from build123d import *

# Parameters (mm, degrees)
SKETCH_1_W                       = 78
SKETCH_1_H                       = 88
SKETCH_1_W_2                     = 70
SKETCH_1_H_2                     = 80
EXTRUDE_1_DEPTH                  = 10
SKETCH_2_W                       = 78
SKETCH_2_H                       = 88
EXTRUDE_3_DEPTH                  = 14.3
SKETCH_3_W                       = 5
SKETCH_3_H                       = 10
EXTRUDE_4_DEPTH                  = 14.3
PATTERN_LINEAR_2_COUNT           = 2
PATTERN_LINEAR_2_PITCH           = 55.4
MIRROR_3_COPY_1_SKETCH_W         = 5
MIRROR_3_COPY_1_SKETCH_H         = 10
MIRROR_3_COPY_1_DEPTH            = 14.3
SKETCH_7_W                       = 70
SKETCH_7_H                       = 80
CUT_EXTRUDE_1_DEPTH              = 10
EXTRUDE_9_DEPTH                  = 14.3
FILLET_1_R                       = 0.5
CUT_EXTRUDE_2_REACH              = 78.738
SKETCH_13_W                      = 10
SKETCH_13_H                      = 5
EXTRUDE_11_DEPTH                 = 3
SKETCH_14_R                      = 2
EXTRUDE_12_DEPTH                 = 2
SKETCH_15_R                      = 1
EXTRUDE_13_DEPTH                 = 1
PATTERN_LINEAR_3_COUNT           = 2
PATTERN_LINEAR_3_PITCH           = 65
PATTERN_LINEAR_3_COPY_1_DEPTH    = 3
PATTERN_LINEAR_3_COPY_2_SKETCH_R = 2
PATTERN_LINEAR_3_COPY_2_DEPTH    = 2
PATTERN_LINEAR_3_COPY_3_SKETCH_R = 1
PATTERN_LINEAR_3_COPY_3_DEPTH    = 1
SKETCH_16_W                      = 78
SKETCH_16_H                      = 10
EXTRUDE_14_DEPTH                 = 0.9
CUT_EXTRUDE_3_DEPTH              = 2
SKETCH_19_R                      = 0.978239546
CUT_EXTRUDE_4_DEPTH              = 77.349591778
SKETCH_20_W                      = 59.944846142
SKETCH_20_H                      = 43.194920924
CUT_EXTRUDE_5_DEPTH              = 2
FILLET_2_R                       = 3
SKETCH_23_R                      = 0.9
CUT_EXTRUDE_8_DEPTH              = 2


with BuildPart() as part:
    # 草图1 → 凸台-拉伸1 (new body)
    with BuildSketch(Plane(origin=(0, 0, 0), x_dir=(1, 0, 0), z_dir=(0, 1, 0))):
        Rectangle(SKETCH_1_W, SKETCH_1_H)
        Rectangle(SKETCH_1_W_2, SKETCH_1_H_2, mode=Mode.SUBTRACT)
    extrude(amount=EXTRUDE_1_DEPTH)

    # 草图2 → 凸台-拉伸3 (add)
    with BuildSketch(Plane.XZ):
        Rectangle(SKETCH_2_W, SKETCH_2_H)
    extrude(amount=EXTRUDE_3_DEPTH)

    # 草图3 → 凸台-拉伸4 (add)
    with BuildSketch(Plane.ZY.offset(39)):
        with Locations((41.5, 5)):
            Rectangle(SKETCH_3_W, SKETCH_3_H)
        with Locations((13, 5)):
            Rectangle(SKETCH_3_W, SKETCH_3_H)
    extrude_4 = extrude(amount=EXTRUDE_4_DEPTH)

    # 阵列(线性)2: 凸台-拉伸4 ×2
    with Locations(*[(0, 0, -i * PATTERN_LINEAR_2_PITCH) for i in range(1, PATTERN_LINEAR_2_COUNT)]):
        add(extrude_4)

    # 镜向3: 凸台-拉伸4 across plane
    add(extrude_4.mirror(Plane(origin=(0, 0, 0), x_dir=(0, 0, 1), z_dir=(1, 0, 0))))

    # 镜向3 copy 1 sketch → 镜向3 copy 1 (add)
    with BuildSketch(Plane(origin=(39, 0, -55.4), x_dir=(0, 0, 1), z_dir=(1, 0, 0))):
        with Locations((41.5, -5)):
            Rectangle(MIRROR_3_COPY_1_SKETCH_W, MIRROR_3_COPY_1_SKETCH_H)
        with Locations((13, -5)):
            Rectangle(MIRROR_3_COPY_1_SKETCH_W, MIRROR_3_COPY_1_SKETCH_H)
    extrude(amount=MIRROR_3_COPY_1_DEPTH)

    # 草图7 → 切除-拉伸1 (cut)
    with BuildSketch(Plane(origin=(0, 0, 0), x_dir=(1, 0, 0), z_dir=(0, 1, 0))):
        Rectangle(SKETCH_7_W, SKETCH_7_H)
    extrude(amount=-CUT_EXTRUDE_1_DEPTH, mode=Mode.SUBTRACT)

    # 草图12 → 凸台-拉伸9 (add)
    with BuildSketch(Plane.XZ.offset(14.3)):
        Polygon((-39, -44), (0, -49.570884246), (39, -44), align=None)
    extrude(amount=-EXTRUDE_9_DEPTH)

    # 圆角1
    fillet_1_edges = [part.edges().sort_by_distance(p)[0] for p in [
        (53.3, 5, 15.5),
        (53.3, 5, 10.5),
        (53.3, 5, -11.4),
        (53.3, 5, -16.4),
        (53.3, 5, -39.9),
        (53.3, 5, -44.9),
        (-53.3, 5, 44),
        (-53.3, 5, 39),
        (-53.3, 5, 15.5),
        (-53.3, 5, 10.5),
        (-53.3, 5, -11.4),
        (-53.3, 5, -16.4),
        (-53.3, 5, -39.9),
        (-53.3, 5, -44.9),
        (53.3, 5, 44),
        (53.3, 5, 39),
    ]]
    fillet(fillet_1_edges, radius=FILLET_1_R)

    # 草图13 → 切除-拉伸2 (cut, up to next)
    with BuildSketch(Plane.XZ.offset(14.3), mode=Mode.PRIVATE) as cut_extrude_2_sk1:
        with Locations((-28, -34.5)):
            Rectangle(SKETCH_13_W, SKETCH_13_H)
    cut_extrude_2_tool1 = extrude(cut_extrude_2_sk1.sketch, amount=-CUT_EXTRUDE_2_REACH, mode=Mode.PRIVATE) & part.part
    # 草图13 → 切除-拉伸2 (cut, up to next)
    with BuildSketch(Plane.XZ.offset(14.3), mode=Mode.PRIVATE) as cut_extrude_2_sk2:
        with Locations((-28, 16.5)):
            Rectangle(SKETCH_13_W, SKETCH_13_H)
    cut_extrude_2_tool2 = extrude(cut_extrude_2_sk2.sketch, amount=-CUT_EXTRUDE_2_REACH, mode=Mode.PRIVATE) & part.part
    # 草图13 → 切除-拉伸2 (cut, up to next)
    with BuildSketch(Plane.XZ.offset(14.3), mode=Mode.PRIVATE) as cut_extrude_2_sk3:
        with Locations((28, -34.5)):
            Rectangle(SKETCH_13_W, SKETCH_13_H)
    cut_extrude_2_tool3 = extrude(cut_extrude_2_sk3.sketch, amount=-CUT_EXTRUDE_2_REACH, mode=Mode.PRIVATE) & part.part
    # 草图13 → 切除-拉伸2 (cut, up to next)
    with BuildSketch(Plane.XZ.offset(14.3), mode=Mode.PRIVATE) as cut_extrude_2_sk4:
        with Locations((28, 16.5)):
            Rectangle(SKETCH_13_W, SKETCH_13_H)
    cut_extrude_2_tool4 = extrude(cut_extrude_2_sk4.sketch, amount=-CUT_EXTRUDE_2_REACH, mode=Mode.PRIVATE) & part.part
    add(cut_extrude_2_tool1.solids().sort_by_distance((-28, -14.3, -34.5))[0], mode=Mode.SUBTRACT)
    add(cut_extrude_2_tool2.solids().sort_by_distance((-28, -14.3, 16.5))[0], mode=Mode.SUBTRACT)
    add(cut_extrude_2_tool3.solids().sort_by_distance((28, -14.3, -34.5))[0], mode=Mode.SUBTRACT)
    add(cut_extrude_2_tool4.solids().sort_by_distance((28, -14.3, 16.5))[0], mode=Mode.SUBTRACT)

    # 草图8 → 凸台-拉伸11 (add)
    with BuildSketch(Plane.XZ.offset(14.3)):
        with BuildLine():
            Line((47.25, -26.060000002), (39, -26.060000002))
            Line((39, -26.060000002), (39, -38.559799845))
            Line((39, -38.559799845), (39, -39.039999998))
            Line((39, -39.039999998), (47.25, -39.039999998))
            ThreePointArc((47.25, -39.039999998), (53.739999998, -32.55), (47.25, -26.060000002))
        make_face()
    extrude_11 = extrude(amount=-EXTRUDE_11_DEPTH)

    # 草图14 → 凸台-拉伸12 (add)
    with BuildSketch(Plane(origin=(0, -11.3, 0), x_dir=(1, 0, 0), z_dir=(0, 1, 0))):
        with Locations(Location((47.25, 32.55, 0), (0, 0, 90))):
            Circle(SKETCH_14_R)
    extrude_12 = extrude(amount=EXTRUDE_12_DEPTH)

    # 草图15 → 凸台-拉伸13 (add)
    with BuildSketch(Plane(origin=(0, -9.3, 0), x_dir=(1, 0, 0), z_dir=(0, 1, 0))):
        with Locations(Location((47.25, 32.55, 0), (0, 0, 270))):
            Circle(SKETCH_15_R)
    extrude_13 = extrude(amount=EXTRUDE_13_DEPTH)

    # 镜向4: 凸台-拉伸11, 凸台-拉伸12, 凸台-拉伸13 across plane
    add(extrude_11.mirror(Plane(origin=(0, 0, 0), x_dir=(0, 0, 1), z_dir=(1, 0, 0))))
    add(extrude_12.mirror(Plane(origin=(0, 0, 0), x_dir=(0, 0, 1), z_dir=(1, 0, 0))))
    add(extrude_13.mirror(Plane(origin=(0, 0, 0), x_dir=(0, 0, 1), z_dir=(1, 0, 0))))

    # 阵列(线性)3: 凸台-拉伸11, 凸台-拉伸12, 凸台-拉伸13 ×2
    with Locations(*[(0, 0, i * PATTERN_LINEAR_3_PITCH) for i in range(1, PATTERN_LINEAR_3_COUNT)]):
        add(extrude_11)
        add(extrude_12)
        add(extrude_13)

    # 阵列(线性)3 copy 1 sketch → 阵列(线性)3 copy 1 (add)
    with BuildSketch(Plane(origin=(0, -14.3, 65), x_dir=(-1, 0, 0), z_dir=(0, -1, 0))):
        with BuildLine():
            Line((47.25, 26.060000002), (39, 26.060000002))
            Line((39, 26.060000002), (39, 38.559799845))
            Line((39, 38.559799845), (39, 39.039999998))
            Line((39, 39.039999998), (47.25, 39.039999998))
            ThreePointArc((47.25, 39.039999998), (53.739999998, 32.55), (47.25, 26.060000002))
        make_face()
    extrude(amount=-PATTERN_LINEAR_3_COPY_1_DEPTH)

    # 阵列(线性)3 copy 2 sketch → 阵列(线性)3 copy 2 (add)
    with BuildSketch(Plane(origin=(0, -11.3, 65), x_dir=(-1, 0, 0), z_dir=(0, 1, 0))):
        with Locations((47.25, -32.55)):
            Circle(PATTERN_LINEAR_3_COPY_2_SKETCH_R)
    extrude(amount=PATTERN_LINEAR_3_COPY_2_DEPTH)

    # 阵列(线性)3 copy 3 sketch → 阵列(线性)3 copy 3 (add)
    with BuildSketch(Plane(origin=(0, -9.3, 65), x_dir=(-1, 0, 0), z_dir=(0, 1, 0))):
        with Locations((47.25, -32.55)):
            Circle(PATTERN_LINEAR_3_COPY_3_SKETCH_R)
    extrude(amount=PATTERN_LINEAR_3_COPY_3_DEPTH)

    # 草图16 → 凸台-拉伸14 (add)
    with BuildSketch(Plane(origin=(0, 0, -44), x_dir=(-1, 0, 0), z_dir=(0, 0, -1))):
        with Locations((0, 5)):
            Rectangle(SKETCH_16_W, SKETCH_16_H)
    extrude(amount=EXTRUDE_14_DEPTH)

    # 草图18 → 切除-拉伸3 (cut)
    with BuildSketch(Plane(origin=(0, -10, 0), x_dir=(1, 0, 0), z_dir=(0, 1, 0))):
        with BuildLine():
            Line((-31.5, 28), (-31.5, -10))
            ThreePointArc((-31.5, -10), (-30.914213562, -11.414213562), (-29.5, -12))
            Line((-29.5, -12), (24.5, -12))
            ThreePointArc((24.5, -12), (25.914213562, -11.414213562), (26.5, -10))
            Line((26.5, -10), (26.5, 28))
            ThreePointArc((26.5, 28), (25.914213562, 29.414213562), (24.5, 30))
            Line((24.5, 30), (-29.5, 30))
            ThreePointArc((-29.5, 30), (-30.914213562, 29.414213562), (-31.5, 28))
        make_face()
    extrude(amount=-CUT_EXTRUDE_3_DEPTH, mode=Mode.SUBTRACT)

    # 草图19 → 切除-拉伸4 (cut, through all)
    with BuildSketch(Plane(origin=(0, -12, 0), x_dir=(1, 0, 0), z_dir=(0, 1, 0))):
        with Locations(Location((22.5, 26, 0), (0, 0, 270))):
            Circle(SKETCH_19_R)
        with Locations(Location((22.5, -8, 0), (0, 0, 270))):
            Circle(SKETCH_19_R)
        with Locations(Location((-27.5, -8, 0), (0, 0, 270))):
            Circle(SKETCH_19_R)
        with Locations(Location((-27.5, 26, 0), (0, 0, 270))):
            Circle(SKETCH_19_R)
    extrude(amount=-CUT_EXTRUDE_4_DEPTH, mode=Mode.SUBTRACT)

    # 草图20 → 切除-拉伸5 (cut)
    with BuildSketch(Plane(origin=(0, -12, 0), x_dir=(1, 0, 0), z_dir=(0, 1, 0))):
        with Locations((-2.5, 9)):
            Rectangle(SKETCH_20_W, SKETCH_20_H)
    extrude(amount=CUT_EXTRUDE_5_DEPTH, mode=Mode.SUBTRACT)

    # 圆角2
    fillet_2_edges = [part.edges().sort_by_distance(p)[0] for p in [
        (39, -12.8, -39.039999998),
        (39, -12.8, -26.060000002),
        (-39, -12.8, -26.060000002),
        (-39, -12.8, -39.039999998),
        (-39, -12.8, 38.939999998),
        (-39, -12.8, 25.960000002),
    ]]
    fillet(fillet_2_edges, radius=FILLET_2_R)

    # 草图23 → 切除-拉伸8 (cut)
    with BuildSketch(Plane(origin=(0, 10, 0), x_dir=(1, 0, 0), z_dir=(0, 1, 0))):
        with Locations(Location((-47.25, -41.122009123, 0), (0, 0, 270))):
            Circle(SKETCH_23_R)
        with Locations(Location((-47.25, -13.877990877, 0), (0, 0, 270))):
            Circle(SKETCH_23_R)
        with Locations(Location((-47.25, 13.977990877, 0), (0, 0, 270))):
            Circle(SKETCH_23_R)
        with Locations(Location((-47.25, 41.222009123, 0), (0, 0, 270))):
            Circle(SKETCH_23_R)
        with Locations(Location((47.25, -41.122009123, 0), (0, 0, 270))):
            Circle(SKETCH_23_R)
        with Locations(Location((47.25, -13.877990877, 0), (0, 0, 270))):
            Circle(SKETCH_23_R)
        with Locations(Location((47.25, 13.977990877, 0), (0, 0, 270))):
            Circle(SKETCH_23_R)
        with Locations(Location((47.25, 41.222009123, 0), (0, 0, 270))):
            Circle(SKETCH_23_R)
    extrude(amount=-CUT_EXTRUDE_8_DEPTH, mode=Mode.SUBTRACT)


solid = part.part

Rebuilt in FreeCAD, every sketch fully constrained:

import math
import FreeCAD as App
import Part
import Sketcher


def edges_at(feature, points):
    """Names of the edges that pass closest to the given points."""
    edges = feature.Shape.Edges
    near = lambda p: min(range(len(edges)), key=lambda i: edges[i].distToShape(Part.Vertex(*p))[0])
    return sorted({f"Edge{near(p) + 1}" for p in points})


def add_polygon(sketch, points):
    """Adds a closed chain of lines whose ends are joined by coincident constraints."""
    first, n = sketch.GeometryCount, len(points)
    for a, b in zip(points, points[1:] + points[:1]):
        sketch.addGeometry(Part.LineSegment(App.Vector(*a, 0), App.Vector(*b, 0)), False)
    for i in range(n):
        sketch.addConstraint(Sketcher.Constraint("Coincident", first + i, 2, first + (i + 1) % n, 1))

doc = App.newDocument("Part")
body = doc.addObject("PartDesign::Body", "Body")

sketch1 = body.newObject("Sketcher::SketchObject", "Sketch")
sketch1.AttachmentSupport = (doc.getObject("XZ_Plane"), [""])
sketch1.MapMode = "FlatFace"
add_polygon(sketch1, [(-39, -44), (-39, 44), (39, 44), (39, -44)])
add_polygon(sketch1, [(35, 40), (-35, 40), (-35, -40), (35, -40)])
sketch1.addConstraint(Sketcher.Constraint("Vertical", 0))
sketch1.addConstraint(Sketcher.Constraint("Horizontal", 1))
sketch1.addConstraint(Sketcher.Constraint("Vertical", 2))
sketch1.addConstraint(Sketcher.Constraint("Horizontal", 3))
sketch1.addConstraint(Sketcher.Constraint("Horizontal", 4))
sketch1.addConstraint(Sketcher.Constraint("Vertical", 5))
sketch1.addConstraint(Sketcher.Constraint("Horizontal", 6))
sketch1.addConstraint(Sketcher.Constraint("Vertical", 7))
sketch1.addConstraint(Sketcher.Constraint("Symmetric", 0, 2, 2, 2, -1, 1))
sketch1.addConstraint(Sketcher.Constraint("Symmetric", 4, 2, 6, 2, -1, 1))
sketch1.addConstraint(Sketcher.Constraint("DistanceX", 1, 1, 1, 2, 78.0))
sketch1.addConstraint(Sketcher.Constraint("DistanceX", 4, 2, 4, 1, 70.0))
sketch1.addConstraint(Sketcher.Constraint("DistanceY", 0, 1, 0, 2, 88.0))
sketch1.addConstraint(Sketcher.Constraint("DistanceY", 5, 2, 5, 1, 80.0))
pad1 = body.newObject("PartDesign::Pad", "Pad")
pad1.Profile = sketch1
pad1.Length = 10
pad1.Reversed = True

sketch2 = body.newObject("Sketcher::SketchObject", "Sketch001")
sketch2.AttachmentSupport = (doc.getObject("XZ_Plane"), [""])
sketch2.MapMode = "FlatFace"
add_polygon(sketch2, [(-39, 44), (-39, -44), (39, -44), (39, 44)])
sketch2.addConstraint(Sketcher.Constraint("Vertical", 0))
sketch2.addConstraint(Sketcher.Constraint("Horizontal", 1))
sketch2.addConstraint(Sketcher.Constraint("Vertical", 2))
sketch2.addConstraint(Sketcher.Constraint("Horizontal", 3))
sketch2.addConstraint(Sketcher.Constraint("Symmetric", 0, 2, 2, 2, -1, 1))
sketch2.addConstraint(Sketcher.Constraint("DistanceX", 1, 1, 1, 2, 78.0))
sketch2.addConstraint(Sketcher.Constraint("DistanceY", 0, 2, 0, 1, 88.0))
pad2 = body.newObject("PartDesign::Pad", "Pad001")
pad2.Profile = sketch2
pad2.Length = 14.3

sketch3 = body.newObject("Sketcher::SketchObject", "Sketch002")
sketch3.AttachmentSupport = (doc.getObject("YZ_Plane"), [""])
sketch3.MapMode = "FlatFace"
sketch3.AttachmentOffset = App.Placement(App.Vector(0, 0, -39), App.Rotation())
add_polygon(sketch3, [(10, 39), (0, 39), (0, 44), (10, 44)])
add_polygon(sketch3, [(10, 10), (0, 10), (0, 16), (10, 16)])
sketch3.addConstraint(Sketcher.Constraint("Horizontal", 0))
sketch3.addConstraint(Sketcher.Constraint("Vertical", 1))
sketch3.addConstraint(Sketcher.Constraint("Horizontal", 2))
sketch3.addConstraint(Sketcher.Constraint("Vertical", 3))
sketch3.addConstraint(Sketcher.Constraint("Horizontal", 4))
sketch3.addConstraint(Sketcher.Constraint("Vertical", 5))
sketch3.addConstraint(Sketcher.Constraint("Horizontal", 6))
sketch3.addConstraint(Sketcher.Constraint("Vertical", 7))
sketch3.addConstraint(Sketcher.Constraint("PointOnObject", 0, 2, -2))
sketch3.addConstraint(Sketcher.Constraint("PointOnObject", 4, 2, -2))
sketch3.addConstraint(Sketcher.Constraint("Vertical", 3, 2, 6, 2))
sketch3.addConstraint(Sketcher.Constraint("Equal", 3, 5))
sketch3.addConstraint(Sketcher.Constraint("DistanceX", 0, 2, 0, 1, 10.0))
sketch3.addConstraint(Sketcher.Constraint("DistanceY", 1, 1, 1, 2, 5.0))
sketch3.addConstraint(Sketcher.Constraint("DistanceY", -1, 1, 0, 2, 39.0))
sketch3.addConstraint(Sketcher.Constraint("DistanceY", -1, 1, 4, 2, 10.5))
pad3 = body.newObject("PartDesign::Pad", "Pad002")
pad3.Profile = sketch3
pad3.Length = 14.3
pad3.Reversed = True
doc.recompute()

linearpattern = body.newObject("PartDesign::LinearPattern", "LinearPattern")
linearpattern.Originals = [pad3]
linearpattern.Direction = (doc.getObject("Z_Axis"), [""])
linearpattern.Mode = "offset"
linearpattern.Offset = 55.4
linearpattern.Occurrences = 2
linearpattern.Reversed = True
body.Tip = linearpattern
doc.recompute()

mirrored = body.newObject("PartDesign::Mirrored", "Mirrored")
mirrored.Originals = [pad3]
mirrored.MirrorPlane = (doc.getObject("YZ_Plane"), [""])
body.Tip = mirrored

sketch4 = body.newObject("Sketcher::SketchObject", "Sketch003")
sketch4.AttachmentSupport = (doc.getObject("YZ_Plane"), [""])
sketch4.MapMode = "FlatFace"
sketch4.AttachmentOffset = App.Placement(App.Vector(0, 0, 39), App.Rotation())
add_polygon(sketch4, [(0, -16.4), (10, -16.4), (10, -11.4), (0, -11.4)])
add_polygon(sketch4, [(0, -44.9), (10, -44.9), (10, -39.9), (0, -39.9)])
sketch4.addConstraint(Sketcher.Constraint("Horizontal", 0))
sketch4.addConstraint(Sketcher.Constraint("Vertical", 1))
sketch4.addConstraint(Sketcher.Constraint("Horizontal", 2))
sketch4.addConstraint(Sketcher.Constraint("Vertical", 3))
sketch4.addConstraint(Sketcher.Constraint("Horizontal", 4))
sketch4.addConstraint(Sketcher.Constraint("Vertical", 5))
sketch4.addConstraint(Sketcher.Constraint("Horizontal", 6))
sketch4.addConstraint(Sketcher.Constraint("Vertical", 7))
sketch4.addConstraint(Sketcher.Constraint("PointOnObject", 2, 2, -2))
sketch4.addConstraint(Sketcher.Constraint("PointOnObject", 6, 2, -2))
sketch4.addConstraint(Sketcher.Constraint("Vertical", 1, 2, 4, 2))
sketch4.addConstraint(Sketcher.Constraint("Equal", 3, 5))
sketch4.addConstraint(Sketcher.Constraint("DistanceX", 0, 1, 0, 2, 10.0))
sketch4.addConstraint(Sketcher.Constraint("DistanceY", 1, 1, 1, 2, 5.0))
sketch4.addConstraint(Sketcher.Constraint("DistanceY", 0, 2, -1, 1, 16.4))
sketch4.addConstraint(Sketcher.Constraint("DistanceY", 4, 2, -1, 1, 44.9))
pad4 = body.newObject("PartDesign::Pad", "Pad003")
pad4.Profile = sketch4
pad4.Length = 14.3

sketch5 = body.newObject("Sketcher::SketchObject", "Sketch004")
sketch5.AttachmentSupport = (doc.getObject("XZ_Plane"), [""])
sketch5.MapMode = "FlatFace"
add_polygon(sketch5, [(-35, -40), (-35, 40), (35, 40), (35, -40)])
sketch5.addConstraint(Sketcher.Constraint("Vertical", 0))
sketch5.addConstraint(Sketcher.Constraint("Horizontal", 1))
sketch5.addConstraint(Sketcher.Constraint("Vertical", 2))
sketch5.addConstraint(Sketcher.Constraint("Horizontal", 3))
sketch5.addConstraint(Sketcher.Constraint("Symmetric", 0, 2, 2, 2, -1, 1))
sketch5.addConstraint(Sketcher.Constraint("DistanceX", 1, 1, 1, 2, 70.0))
sketch5.addConstraint(Sketcher.Constraint("DistanceY", 0, 1, 0, 2, 80.0))
pocket1 = body.newObject("PartDesign::Pocket", "Pocket")
pocket1.Profile = sketch5
pocket1.Length = 10
pocket1.Reversed = True

sketch6 = body.newObject("Sketcher::SketchObject", "Sketch005")
sketch6.AttachmentSupport = (doc.getObject("XZ_Plane"), [""])
sketch6.MapMode = "FlatFace"
sketch6.AttachmentOffset = App.Placement(App.Vector(0, 0, 14.3), App.Rotation())
add_polygon(sketch6, [(-39, -44), (0, -50), (39, -44)])
sketch6.addConstraint(Sketcher.Constraint("Horizontal", 2))
sketch6.addConstraint(Sketcher.Constraint("PointOnObject", 0, 2, -2))
sketch6.addConstraint(Sketcher.Constraint("Equal", 0, 1))
sketch6.addConstraint(Sketcher.Constraint("DistanceX", 2, 2, 2, 1, 78.0))
sketch6.addConstraint(Sketcher.Constraint("DistanceY", 1, 2, -1, 1, 44.0))
sketch6.addConstraint(Sketcher.Constraint("Distance", 0, 39.395872))
pad5 = body.newObject("PartDesign::Pad", "Pad004")
pad5.Profile = sketch6
pad5.Length = 14.3
pad5.Reversed = True
doc.recompute()

fillet = body.newObject("PartDesign::Fillet", "Fillet")
fillet.Base = (pad5, edges_at(pad5, [
    (53.3, 5, 15.5),
    (53.3, 5, 10.5),
    (53.3, 5, -11.4),
    (53.3, 5, -16.4),
    (53.3, 5, -39.9),
    (53.3, 5, -44.9),
    (-53.3, 5, 44),
    (-53.3, 5, 39),
    (-53.3, 5, 15.5),
    (-53.3, 5, 10.5),
    (-53.3, 5, -11.4),
    (-53.3, 5, -16.4),
    (-53.3, 5, -39.9),
    (-53.3, 5, -44.9),
    (53.3, 5, 44),
    (53.3, 5, 39),
]))
fillet.Radius = 0.5

sketch7 = body.newObject("Sketcher::SketchObject", "Sketch006")
sketch7.AttachmentSupport = (doc.getObject("XZ_Plane"), [""])
sketch7.MapMode = "FlatFace"
sketch7.AttachmentOffset = App.Placement(App.Vector(0, 0, 14.3), App.Rotation())
add_polygon(sketch7, [(-33, -32), (-33, -37), (-23, -37), (-23, -32)])
sketch7.addConstraint(Sketcher.Constraint("Vertical", 0))
sketch7.addConstraint(Sketcher.Constraint("Horizontal", 1))
sketch7.addConstraint(Sketcher.Constraint("Vertical", 2))
sketch7.addConstraint(Sketcher.Constraint("Horizontal", 3))
sketch7.addConstraint(Sketcher.Constraint("DistanceX", 1, 1, 1, 2, 10.0))
sketch7.addConstraint(Sketcher.Constraint("DistanceY", 0, 2, 0, 1, 5.0))
sketch7.addConstraint(Sketcher.Constraint("DistanceX", 0, 2, -1, 1, 33.0))
sketch7.addConstraint(Sketcher.Constraint("DistanceY", 0, 2, -1, 1, 37.0))
pocket2 = body.newObject("PartDesign::Pocket", "Pocket001")
pocket2.Profile = sketch7
pocket2.Type = "UpToFirst"

sketch8 = body.newObject("Sketcher::SketchObject", "Sketch007")
sketch8.AttachmentSupport = (doc.getObject("XZ_Plane"), [""])
sketch8.MapMode = "FlatFace"
sketch8.AttachmentOffset = App.Placement(App.Vector(0, 0, 14.3), App.Rotation())
add_polygon(sketch8, [(-33, 19), (-33, 14), (-23, 14), (-23, 19)])
sketch8.addConstraint(Sketcher.Constraint("Vertical", 0))
sketch8.addConstraint(Sketcher.Constraint("Horizontal", 1))
sketch8.addConstraint(Sketcher.Constraint("Vertical", 2))
sketch8.addConstraint(Sketcher.Constraint("Horizontal", 3))
sketch8.addConstraint(Sketcher.Constraint("DistanceX", 1, 1, 1, 2, 10.0))
sketch8.addConstraint(Sketcher.Constraint("DistanceY", 0, 2, 0, 1, 5.0))
sketch8.addConstraint(Sketcher.Constraint("DistanceX", 0, 2, -1, 1, 33.0))
sketch8.addConstraint(Sketcher.Constraint("DistanceY", -1, 1, 0, 2, 14.0))
pocket3 = body.newObject("PartDesign::Pocket", "Pocket002")
pocket3.Profile = sketch8
pocket3.Type = "UpToFirst"

sketch9 = body.newObject("Sketcher::SketchObject", "Sketch008")
sketch9.AttachmentSupport = (doc.getObject("XZ_Plane"), [""])
sketch9.MapMode = "FlatFace"
sketch9.AttachmentOffset = App.Placement(App.Vector(0, 0, 14.3), App.Rotation())
add_polygon(sketch9, [(23, -32), (23, -37), (33, -37), (33, -32)])
sketch9.addConstraint(Sketcher.Constraint("Vertical", 0))
sketch9.addConstraint(Sketcher.Constraint("Horizontal", 1))
sketch9.addConstraint(Sketcher.Constraint("Vertical", 2))
sketch9.addConstraint(Sketcher.Constraint("Horizontal", 3))
sketch9.addConstraint(Sketcher.Constraint("DistanceX", 1, 1, 1, 2, 10.0))
sketch9.addConstraint(Sketcher.Constraint("DistanceY", 0, 2, 0, 1, 5.0))
sketch9.addConstraint(Sketcher.Constraint("DistanceX", -1, 1, 0, 2, 23.0))
sketch9.addConstraint(Sketcher.Constraint("DistanceY", 0, 2, -1, 1, 37.0))
pocket4 = body.newObject("PartDesign::Pocket", "Pocket003")
pocket4.Profile = sketch9
pocket4.Type = "UpToFirst"

sketch10 = body.newObject("Sketcher::SketchObject", "Sketch009")
sketch10.AttachmentSupport = (doc.getObject("XZ_Plane"), [""])
sketch10.MapMode = "FlatFace"
sketch10.AttachmentOffset = App.Placement(App.Vector(0, 0, 14.3), App.Rotation())
add_polygon(sketch10, [(23, 19), (23, 14), (33, 14), (33, 19)])
sketch10.addConstraint(Sketcher.Constraint("Vertical", 0))
sketch10.addConstraint(Sketcher.Constraint("Horizontal", 1))
sketch10.addConstraint(Sketcher.Constraint("Vertical", 2))
sketch10.addConstraint(Sketcher.Constraint("Horizontal", 3))
sketch10.addConstraint(Sketcher.Constraint("DistanceX", 1, 1, 1, 2, 10.0))
sketch10.addConstraint(Sketcher.Constraint("DistanceY", 0, 2, 0, 1, 5.0))
sketch10.addConstraint(Sketcher.Constraint("DistanceX", -1, 1, 0, 2, 23.0))
sketch10.addConstraint(Sketcher.Constraint("DistanceY", -1, 1, 0, 2, 14.0))
pocket5 = body.newObject("PartDesign::Pocket", "Pocket004")
pocket5.Profile = sketch10
pocket5.Type = "UpToFirst"

sketch11 = body.newObject("Sketcher::SketchObject", "Sketch010")
sketch11.AttachmentSupport = (doc.getObject("XZ_Plane"), [""])
sketch11.MapMode = "FlatFace"
sketch11.AttachmentOffset = App.Placement(App.Vector(0, 0, 14.3), App.Rotation())
sketch11.addGeometry(Part.LineSegment(App.Vector(47, -26, 0), App.Vector(39, -26, 0)), False)
sketch11.addGeometry(Part.LineSegment(App.Vector(39, -26, 0), App.Vector(39, -39, 0)), False)
sketch11.addGeometry(Part.LineSegment(App.Vector(39, -39, 0), App.Vector(47, -39, 0)), False)
sketch11.addGeometry(Part.ArcOfCircle(Part.Circle(App.Vector(47, -33, 0), App.Vector(0, 0, 1), 6), math.radians(-90), math.radians(90)), False)
sketch11.addConstraint(Sketcher.Constraint("Coincident", 0, 2, 1, 1))
sketch11.addConstraint(Sketcher.Constraint("Coincident", 1, 2, 2, 1))
sketch11.addConstraint(Sketcher.Constraint("Tangent", 2, 2, 3, 1))
sketch11.addConstraint(Sketcher.Constraint("Tangent", 3, 2, 0, 1))
sketch11.addConstraint(Sketcher.Constraint("Horizontal", 0))
sketch11.addConstraint(Sketcher.Constraint("Vertical", 1))
sketch11.addConstraint(Sketcher.Constraint("Horizontal", 2))
sketch11.addConstraint(Sketcher.Constraint("Radius", 3, 6.49))
sketch11.addConstraint(Sketcher.Constraint("DistanceX", -1, 1, 0, 2, 39.0))
sketch11.addConstraint(Sketcher.Constraint("DistanceX", 0, 2, 0, 1, 8.25))
sketch11.addConstraint(Sketcher.Constraint("DistanceY", 3, 3, -1, 1, 32.55))
pad6 = body.newObject("PartDesign::Pad", "Pad005")
pad6.Profile = sketch11
pad6.Length = 3
pad6.Reversed = True

sketch12 = body.newObject("Sketcher::SketchObject", "Sketch011")
sketch12.AttachmentSupport = (doc.getObject("XZ_Plane"), [""])
sketch12.MapMode = "FlatFace"
sketch12.AttachmentOffset = App.Placement(App.Vector(0, 0, 11.3), App.Rotation())
sketch12.addGeometry(Part.Circle(App.Vector(47.2, -32.5, 0), App.Vector(0, 0, 1), 2), False)
sketch12.addConstraint(Sketcher.Constraint("Diameter", 0, 4.0))
sketch12.addConstraint(Sketcher.Constraint("DistanceX", -1, 1, 0, 3, 47.25))
sketch12.addConstraint(Sketcher.Constraint("DistanceY", 0, 3, -1, 1, 32.55))
pad7 = body.newObject("PartDesign::Pad", "Pad006")
pad7.Profile = sketch12
pad7.Length = 2
pad7.Reversed = True

sketch13 = body.newObject("Sketcher::SketchObject", "Sketch012")
sketch13.AttachmentSupport = (doc.getObject("XZ_Plane"), [""])
sketch13.MapMode = "FlatFace"
sketch13.AttachmentOffset = App.Placement(App.Vector(0, 0, 9.3), App.Rotation())
sketch13.addGeometry(Part.Circle(App.Vector(47.2, -32.5, 0), App.Vector(0, 0, 1), 1), False)
sketch13.addConstraint(Sketcher.Constraint("Diameter", 0, 2.0))
sketch13.addConstraint(Sketcher.Constraint("DistanceX", -1, 1, 0, 3, 47.25))
sketch13.addConstraint(Sketcher.Constraint("DistanceY", 0, 3, -1, 1, 32.55))
pad8 = body.newObject("PartDesign::Pad", "Pad007")
pad8.Profile = sketch13
pad8.Length = 1
pad8.Reversed = True
doc.recompute()

mirrored2 = body.newObject("PartDesign::Mirrored", "Mirrored001")
mirrored2.Originals = [pad6, pad7, pad8]
mirrored2.MirrorPlane = (doc.getObject("YZ_Plane"), [""])
body.Tip = mirrored2
doc.recompute()

linearpattern2 = body.newObject("PartDesign::LinearPattern", "LinearPattern001")
linearpattern2.Originals = [pad6, pad7, pad8]
linearpattern2.Direction = (doc.getObject("Z_Axis"), [""])
linearpattern2.Mode = "offset"
linearpattern2.Offset = 65
linearpattern2.Occurrences = 2
body.Tip = linearpattern2

sketch14 = body.newObject("Sketcher::SketchObject", "Sketch013")
sketch14.AttachmentSupport = (doc.getObject("XZ_Plane"), [""])
sketch14.MapMode = "FlatFace"
sketch14.AttachmentOffset = App.Placement(App.Vector(0, 0, 14.3), App.Rotation())
sketch14.addGeometry(Part.LineSegment(App.Vector(-39, 39, 0), App.Vector(-47, 39, 0)), False)
sketch14.addGeometry(Part.ArcOfCircle(Part.Circle(App.Vector(-47, 32, 0), App.Vector(0, 0, 1), 6), math.radians(90), math.radians(270)), False)
sketch14.addGeometry(Part.LineSegment(App.Vector(-47, 26, 0), App.Vector(-39, 26, 0)), False)
sketch14.addGeometry(Part.LineSegment(App.Vector(-39, 26, 0), App.Vector(-39, 39, 0)), False)
sketch14.addConstraint(Sketcher.Constraint("Tangent", 0, 2, 1, 1))
sketch14.addConstraint(Sketcher.Constraint("Tangent", 1, 2, 2, 1))
sketch14.addConstraint(Sketcher.Constraint("Coincident", 2, 2, 3, 1))
sketch14.addConstraint(Sketcher.Constraint("Coincident", 3, 2, 0, 1))
sketch14.addConstraint(Sketcher.Constraint("Horizontal", 0))
sketch14.addConstraint(Sketcher.Constraint("Horizontal", 2))
sketch14.addConstraint(Sketcher.Constraint("Vertical", 3))
sketch14.addConstraint(Sketcher.Constraint("Radius", 1, 6.49))
sketch14.addConstraint(Sketcher.Constraint("DistanceX", 2, 2, -1, 1, 39.0))
sketch14.addConstraint(Sketcher.Constraint("DistanceX", 0, 2, 0, 1, 8.25))
sketch14.addConstraint(Sketcher.Constraint("DistanceY", -1, 1, 1, 3, 32.45))
pad9 = body.newObject("PartDesign::Pad", "Pad008")
pad9.Profile = sketch14
pad9.Length = 3
pad9.Reversed = True

sketch15 = body.newObject("Sketcher::SketchObject", "Sketch014")
sketch15.AttachmentSupport = (doc.getObject("XZ_Plane"), [""])
sketch15.MapMode = "FlatFace"
sketch15.AttachmentOffset = App.Placement(App.Vector(0, 0, 11.3), App.Rotation())
sketch15.addGeometry(Part.Circle(App.Vector(-47.2, 32.5, 0), App.Vector(0, 0, 1), 2), False)
sketch15.addConstraint(Sketcher.Constraint("Diameter", 0, 4.0))
sketch15.addConstraint(Sketcher.Constraint("DistanceX", 0, 3, -1, 1, 47.25))
sketch15.addConstraint(Sketcher.Constraint("DistanceY", -1, 1, 0, 3, 32.45))
pad10 = body.newObject("PartDesign::Pad", "Pad009")
pad10.Profile = sketch15
pad10.Length = 2
pad10.Reversed = True

sketch16 = body.newObject("Sketcher::SketchObject", "Sketch015")
sketch16.AttachmentSupport = (doc.getObject("XZ_Plane"), [""])
sketch16.MapMode = "FlatFace"
sketch16.AttachmentOffset = App.Placement(App.Vector(0, 0, 9.3), App.Rotation())
sketch16.addGeometry(Part.Circle(App.Vector(-47.2, 32.5, 0), App.Vector(0, 0, 1), 1), False)
sketch16.addConstraint(Sketcher.Constraint("Diameter", 0, 2.0))
sketch16.addConstraint(Sketcher.Constraint("DistanceX", 0, 3, -1, 1, 47.25))
sketch16.addConstraint(Sketcher.Constraint("DistanceY", -1, 1, 0, 3, 32.45))
pad11 = body.newObject("PartDesign::Pad", "Pad010")
pad11.Profile = sketch16
pad11.Length = 1
pad11.Reversed = True

sketch17 = body.newObject("Sketcher::SketchObject", "Sketch016")
sketch17.AttachmentSupport = (doc.getObject("XY_Plane"), [""])
sketch17.MapMode = "FlatFace"
sketch17.AttachmentOffset = App.Placement(App.Vector(0, 0, -44), App.Rotation())
add_polygon(sketch17, [(39, 10), (39, 0), (-39, 0), (-39, 10)])
sketch17.addConstraint(Sketcher.Constraint("Vertical", 0))
sketch17.addConstraint(Sketcher.Constraint("Horizontal", 1))
sketch17.addConstraint(Sketcher.Constraint("Vertical", 2))
sketch17.addConstraint(Sketcher.Constraint("Horizontal", 3))
sketch17.addConstraint(Sketcher.Constraint("Symmetric", 0, 2, 1, 2, -1, 1))
sketch17.addConstraint(Sketcher.Constraint("DistanceX", 1, 2, 1, 1, 78.0))
sketch17.addConstraint(Sketcher.Constraint("DistanceY", 0, 2, 0, 1, 10.0))
pad12 = body.newObject("PartDesign::Pad", "Pad011")
pad12.Profile = sketch17
pad12.Length = 0.9
pad12.Reversed = True

sketch18 = body.newObject("Sketcher::SketchObject", "Sketch017")
sketch18.AttachmentSupport = (doc.getObject("XZ_Plane"), [""])
sketch18.MapMode = "FlatFace"
sketch18.AttachmentOffset = App.Placement(App.Vector(0, 0, 10), App.Rotation())
sketch18.addGeometry(Part.LineSegment(App.Vector(-31.5, -28, 0), App.Vector(-31.5, 10, 0)), False)
sketch18.addGeometry(Part.ArcOfCircle(Part.Circle(App.Vector(-29.5, 10, 0), App.Vector(0, 0, 1), 2), math.radians(90), math.radians(180)), False)
sketch18.addGeometry(Part.LineSegment(App.Vector(-29.5, 12, 0), App.Vector(24.5, 12, 0)), False)
sketch18.addGeometry(Part.ArcOfCircle(Part.Circle(App.Vector(24.5, 10, 0), App.Vector(0, 0, 1), 2), math.radians(0), math.radians(90)), False)
sketch18.addGeometry(Part.LineSegment(App.Vector(26.5, 10, 0), App.Vector(26.5, -28, 0)), False)
sketch18.addGeometry(Part.ArcOfCircle(Part.Circle(App.Vector(24.5, -28, 0), App.Vector(0, 0, 1), 2), math.radians(-90), math.radians(0)), False)
sketch18.addGeometry(Part.LineSegment(App.Vector(24.5, -30, 0), App.Vector(-29.5, -30, 0)), False)
sketch18.addGeometry(Part.ArcOfCircle(Part.Circle(App.Vector(-29.5, -28, 0), App.Vector(0, 0, 1), 2), math.radians(-180), math.radians(-90)), False)
sketch18.addConstraint(Sketcher.Constraint("Tangent", 0, 2, 1, 2))
sketch18.addConstraint(Sketcher.Constraint("Tangent", 1, 1, 2, 1))
sketch18.addConstraint(Sketcher.Constraint("Tangent", 2, 2, 3, 2))
sketch18.addConstraint(Sketcher.Constraint("Tangent", 3, 1, 4, 1))
sketch18.addConstraint(Sketcher.Constraint("Tangent", 4, 2, 5, 2))
sketch18.addConstraint(Sketcher.Constraint("Tangent", 5, 1, 6, 1))
sketch18.addConstraint(Sketcher.Constraint("Tangent", 6, 2, 7, 2))
sketch18.addConstraint(Sketcher.Constraint("Tangent", 7, 1, 0, 1))
sketch18.addConstraint(Sketcher.Constraint("Vertical", 0))
sketch18.addConstraint(Sketcher.Constraint("Horizontal", 2))
sketch18.addConstraint(Sketcher.Constraint("Vertical", 4))
sketch18.addConstraint(Sketcher.Constraint("Horizontal", 6))
sketch18.addConstraint(Sketcher.Constraint("Equal", 1, 3))
sketch18.addConstraint(Sketcher.Constraint("Equal", 3, 5))
sketch18.addConstraint(Sketcher.Constraint("Equal", 5, 7))
sketch18.addConstraint(Sketcher.Constraint("Radius", 1, 2.0))
sketch18.addConstraint(Sketcher.Constraint("DistanceX", 2, 1, 2, 2, 54.0))
sketch18.addConstraint(Sketcher.Constraint("DistanceY", 0, 1, 0, 2, 38.0))
sketch18.addConstraint(Sketcher.Constraint("DistanceY", -1, 1, 1, 3, 10.0))
sketch18.addConstraint(Sketcher.Constraint("DistanceX", 1, 3, -1, 1, 29.5))
pocket6 = body.newObject("PartDesign::Pocket", "Pocket005")
pocket6.Profile = sketch18
pocket6.Length = 2
pocket6.Reversed = True

sketch19 = body.newObject("Sketcher::SketchObject", "Sketch018")
sketch19.AttachmentSupport = (doc.getObject("XZ_Plane"), [""])
sketch19.MapMode = "FlatFace"
sketch19.AttachmentOffset = App.Placement(App.Vector(0, 0, 12), App.Rotation())
sketch19.addGeometry(Part.Circle(App.Vector(22.5, -26, 0), App.Vector(0, 0, 1), 1), False)
sketch19.addGeometry(Part.Circle(App.Vector(22.5, 8, 0), App.Vector(0, 0, 1), 1), False)
sketch19.addGeometry(Part.Circle(App.Vector(-27.5, 8, 0), App.Vector(0, 0, 1), 1), False)
sketch19.addGeometry(Part.Circle(App.Vector(-27.5, -26, 0), App.Vector(0, 0, 1), 1), False)
sketch19.addConstraint(Sketcher.Constraint("Equal", 0, 1))
sketch19.addConstraint(Sketcher.Constraint("Equal", 1, 2))
sketch19.addConstraint(Sketcher.Constraint("Equal", 2, 3))
sketch19.addConstraint(Sketcher.Constraint("Horizontal", 1, 3, 2, 3))
sketch19.addConstraint(Sketcher.Constraint("Horizontal", 0, 3, 3, 3))
sketch19.addConstraint(Sketcher.Constraint("Vertical", 0, 3, 1, 3))
sketch19.addConstraint(Sketcher.Constraint("Vertical", 2, 3, 3, 3))
sketch19.addConstraint(Sketcher.Constraint("DistanceY", 0, 3, -1, 1, 26.0))
sketch19.addConstraint(Sketcher.Constraint("DistanceY", -1, 1, 1, 3, 8.0))
sketch19.addConstraint(Sketcher.Constraint("DistanceX", 2, 3, 1, 3, 50.0))
sketch19.addConstraint(Sketcher.Constraint("DistanceX", -1, 1, 0, 3, 22.5))
sketch19.addConstraint(Sketcher.Constraint("Diameter", 0, 1.956479))
pocket7 = body.newObject("PartDesign::Pocket", "Pocket006")
pocket7.Profile = sketch19
pocket7.Type = "ThroughAll"
pocket7.Reversed = True

sketch20 = body.newObject("Sketcher::SketchObject", "Sketch019")
sketch20.AttachmentSupport = (doc.getObject("XZ_Plane"), [""])
sketch20.MapMode = "FlatFace"
sketch20.AttachmentOffset = App.Placement(App.Vector(0, 0, 12), App.Rotation())
add_polygon(sketch20, [(-32, -31), (-32, 13), (27, 13), (27, -31)])
sketch20.addConstraint(Sketcher.Constraint("Vertical", 0))
sketch20.addConstraint(Sketcher.Constraint("Horizontal", 1))
sketch20.addConstraint(Sketcher.Constraint("Vertical", 2))
sketch20.addConstraint(Sketcher.Constraint("Horizontal", 3))
sketch20.addConstraint(Sketcher.Constraint("DistanceY", 0, 1, 0, 2, 43.194921))
sketch20.addConstraint(Sketcher.Constraint("DistanceX", 1, 1, 1, 2, 59.944846))
sketch20.addConstraint(Sketcher.Constraint("DistanceY", -1, 1, 0, 2, 12.59746))
sketch20.addConstraint(Sketcher.Constraint("DistanceX", 0, 2, -1, 1, 32.472423))
pocket8 = body.newObject("PartDesign::Pocket", "Pocket007")
pocket8.Profile = sketch20
pocket8.Length = 2
doc.recompute()

fillet2 = body.newObject("PartDesign::Fillet", "Fillet001")
fillet2.Base = (pocket8, edges_at(pocket8, [
    (39, -12.8, -39.04),
    (39, -12.8, -26.06),
    (-39, -12.8, -26.06),
    (-39, -12.8, -39.04),
    (-39, -12.8, 38.94),
    (-39, -12.8, 25.96),
]))
fillet2.Radius = 3

sketch21 = body.newObject("Sketcher::SketchObject", "Sketch020")
sketch21.AttachmentSupport = (doc.getObject("XZ_Plane"), [""])
sketch21.MapMode = "FlatFace"
sketch21.AttachmentOffset = App.Placement(App.Vector(0, 0, -10), App.Rotation())
sketch21.addGeometry(Part.Circle(App.Vector(-47.2, 41.1, 0), App.Vector(0, 0, 1), 0.9), False)
sketch21.addGeometry(Part.Circle(App.Vector(-47.2, 13.9, 0), App.Vector(0, 0, 1), 0.9), False)
sketch21.addGeometry(Part.Circle(App.Vector(-47.2, -14, 0), App.Vector(0, 0, 1), 0.9), False)
sketch21.addGeometry(Part.Circle(App.Vector(-47.2, -41.2, 0), App.Vector(0, 0, 1), 0.9), False)
sketch21.addGeometry(Part.Circle(App.Vector(47.2, 41.1, 0), App.Vector(0, 0, 1), 0.9), False)
sketch21.addGeometry(Part.Circle(App.Vector(47.2, 13.9, 0), App.Vector(0, 0, 1), 0.9), False)
sketch21.addGeometry(Part.Circle(App.Vector(47.2, -14, 0), App.Vector(0, 0, 1), 0.9), False)
sketch21.addGeometry(Part.Circle(App.Vector(47.2, -41.2, 0), App.Vector(0, 0, 1), 0.9), False)
sketch21.addConstraint(Sketcher.Constraint("Equal", 0, 1))
sketch21.addConstraint(Sketcher.Constraint("Equal", 1, 2))
sketch21.addConstraint(Sketcher.Constraint("Equal", 2, 3))
sketch21.addConstraint(Sketcher.Constraint("Equal", 3, 4))
sketch21.addConstraint(Sketcher.Constraint("Equal", 4, 5))
sketch21.addConstraint(Sketcher.Constraint("Equal", 5, 6))
sketch21.addConstraint(Sketcher.Constraint("Equal", 6, 7))
sketch21.addConstraint(Sketcher.Constraint("Symmetric", 0, 3, 4, 3, -2))
sketch21.addConstraint(Sketcher.Constraint("Symmetric", 1, 3, 5, 3, -2))
sketch21.addConstraint(Sketcher.Constraint("Symmetric", 2, 3, 6, 3, -2))
sketch21.addConstraint(Sketcher.Constraint("Symmetric", 3, 3, 7, 3, -2))
sketch21.addConstraint(Sketcher.Constraint("Vertical", 0, 3, 1, 3))
sketch21.addConstraint(Sketcher.Constraint("Vertical", 1, 3, 2, 3))
sketch21.addConstraint(Sketcher.Constraint("Vertical", 2, 3, 3, 3))
sketch21.addConstraint(Sketcher.Constraint("Diameter", 0, 1.8))
sketch21.addConstraint(Sketcher.Constraint("DistanceY", 2, 3, 0, 3, 55.1))
sketch21.addConstraint(Sketcher.Constraint("DistanceY", 3, 3, 1, 3, 55.1))
sketch21.addConstraint(Sketcher.Constraint("DistanceX", 0, 3, 4, 3, 94.5))
sketch21.addConstraint(Sketcher.Constraint("DistanceY", -1, 1, 0, 3, 41.122009))
sketch21.addConstraint(Sketcher.Constraint("DistanceY", -1, 1, 1, 3, 13.877991))
pocket9 = body.newObject("PartDesign::Pocket", "Pocket008")
pocket9.Profile = sketch21
pocket9.Length = 2
pocket9.Reversed = True

doc.recompute()
